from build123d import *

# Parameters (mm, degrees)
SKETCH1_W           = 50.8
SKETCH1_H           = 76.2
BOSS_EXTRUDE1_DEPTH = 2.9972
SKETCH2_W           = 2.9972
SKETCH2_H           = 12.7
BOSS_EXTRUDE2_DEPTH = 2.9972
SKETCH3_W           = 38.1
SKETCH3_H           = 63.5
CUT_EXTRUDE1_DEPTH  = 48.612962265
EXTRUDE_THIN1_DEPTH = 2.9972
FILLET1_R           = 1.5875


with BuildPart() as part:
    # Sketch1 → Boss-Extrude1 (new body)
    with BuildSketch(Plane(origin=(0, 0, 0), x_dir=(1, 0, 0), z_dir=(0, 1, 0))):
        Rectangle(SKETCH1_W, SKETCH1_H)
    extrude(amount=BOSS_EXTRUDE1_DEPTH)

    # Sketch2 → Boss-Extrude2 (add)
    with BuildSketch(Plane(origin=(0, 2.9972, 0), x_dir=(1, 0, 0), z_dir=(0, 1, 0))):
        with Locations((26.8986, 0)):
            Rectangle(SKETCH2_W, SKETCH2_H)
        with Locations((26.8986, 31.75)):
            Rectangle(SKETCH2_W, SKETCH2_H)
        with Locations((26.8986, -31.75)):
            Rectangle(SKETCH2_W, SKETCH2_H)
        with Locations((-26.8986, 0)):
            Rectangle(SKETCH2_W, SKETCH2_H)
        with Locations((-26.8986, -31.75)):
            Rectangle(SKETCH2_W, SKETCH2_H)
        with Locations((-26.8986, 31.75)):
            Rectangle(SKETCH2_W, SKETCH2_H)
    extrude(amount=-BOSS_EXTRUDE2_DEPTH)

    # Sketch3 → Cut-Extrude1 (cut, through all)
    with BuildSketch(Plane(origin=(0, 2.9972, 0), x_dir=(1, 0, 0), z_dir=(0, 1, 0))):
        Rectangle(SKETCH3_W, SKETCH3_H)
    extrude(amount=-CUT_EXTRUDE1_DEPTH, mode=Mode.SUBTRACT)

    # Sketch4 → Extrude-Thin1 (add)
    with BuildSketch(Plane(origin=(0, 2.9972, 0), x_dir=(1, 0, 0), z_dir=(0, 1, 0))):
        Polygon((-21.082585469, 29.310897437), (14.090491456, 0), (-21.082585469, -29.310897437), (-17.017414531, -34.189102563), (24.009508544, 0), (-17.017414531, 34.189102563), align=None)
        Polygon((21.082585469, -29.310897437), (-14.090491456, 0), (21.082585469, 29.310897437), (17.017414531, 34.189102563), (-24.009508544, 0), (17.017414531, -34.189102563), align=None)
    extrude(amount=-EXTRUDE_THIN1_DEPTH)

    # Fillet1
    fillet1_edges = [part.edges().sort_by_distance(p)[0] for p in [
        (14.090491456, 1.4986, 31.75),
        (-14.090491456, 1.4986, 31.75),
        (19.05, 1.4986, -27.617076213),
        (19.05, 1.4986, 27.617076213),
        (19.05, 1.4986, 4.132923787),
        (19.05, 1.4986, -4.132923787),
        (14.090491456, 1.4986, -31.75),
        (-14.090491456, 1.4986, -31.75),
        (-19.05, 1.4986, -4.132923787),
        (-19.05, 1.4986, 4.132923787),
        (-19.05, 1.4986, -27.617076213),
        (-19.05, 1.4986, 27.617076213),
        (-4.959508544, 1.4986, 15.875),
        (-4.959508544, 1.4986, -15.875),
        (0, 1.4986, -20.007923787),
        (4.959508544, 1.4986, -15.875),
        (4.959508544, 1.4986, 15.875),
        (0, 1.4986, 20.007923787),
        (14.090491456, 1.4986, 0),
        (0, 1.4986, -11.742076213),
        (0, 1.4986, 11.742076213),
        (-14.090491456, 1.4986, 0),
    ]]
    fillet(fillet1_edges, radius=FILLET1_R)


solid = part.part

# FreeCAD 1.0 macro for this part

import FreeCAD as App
import Part
import Sketcher
Q = App.Units.Quantity


def edges_at(feature, points):
    """Names of the edges that pass closest to the given points."""
    edges = feature.Shape.Edges
    near = lambda p: min(range(len(edges)), key=lambda i: edges[i].distToShape(Part.Vertex(*p))[0])
    return sorted({f"Edge{near(p) + 1}" for p in points})


def add_polygon(sketch, points):
    """Adds a closed chain of lines whose ends are joined by coincident constraints."""
    first, n = sketch.GeometryCount, len(points)
    for a, b in zip(points, points[1:] + points[:1]):
        sketch.addGeometry(Part.LineSegment(App.Vector(*a, 0), App.Vector(*b, 0)), False)
    for i in range(n):
        sketch.addConstraint(Sketcher.Constraint("Coincident", first + i, 2, first + (i + 1) % n, 1))

doc = App.newDocument("Part")
body = doc.addObject("PartDesign::Body", "Body")

# Sketch on XZ plane
sketch1 = doc.addObject("Sketcher::SketchObject", "Sketch")
body.addObject(sketch1)
sketch1.AttachmentSupport = (doc.XZ_Plane, [""])
sketch1.MapMode = "FlatFace"
add_polygon(sketch1, [(-25, -38), (-25, 38), (25, 38), (25, -38)])  # lines 0-3
sketch1.addConstraint([
    Sketcher.Constraint("Vertical", 0),
    Sketcher.Constraint("Horizontal", 1),
    Sketcher.Constraint("Vertical", 2),
    Sketcher.Constraint("Horizontal", 3),
    Sketcher.Constraint("Symmetric", 0, 2, 2, 2, -1, 1),
    Sketcher.Constraint("DistanceX", 1, 1, 1, 2, Q("2 in")),
    Sketcher.Constraint("DistanceY", 0, 1, 0, 2, Q("3 in")),
])
pad1 = doc.addObject("PartDesign::Pad", "Pad")
body.addObject(pad1)
pad1.Profile = sketch1
pad1.Length = Q("0.118 in")
pad1.Reversed = True

# Sketch on XZ plane
sketch2 = doc.addObject("Sketcher::SketchObject", "Sketch001")
body.addObject(sketch2)
sketch2.AttachmentSupport = (doc.XZ_Plane, [""])
sketch2.MapMode = "FlatFace"
sketch2.AttachmentOffset = App.Placement(App.Vector(0, 0, -0.118 * 25.4), App.Rotation())
add_polygon(sketch2, [(25.4, -6.3), (25.4, 6.3), (28.4, 6.3), (28.4, -6.3)])  # lines 0-3
add_polygon(sketch2, [(25.4, -38.1), (25.4, -25.4), (28.4, -25.4), (28.4, -38.1)])  # lines 4-7
add_polygon(sketch2, [(25.4, 25.4), (25.4, 38.1), (28.4, 38.1), (28.4, 25.4)])  # lines 8-11
add_polygon(sketch2, [(-28.4, -6.3), (-28.4, 6.3), (-25.4, 6.3), (-25.4, -6.3)])  # lines 12-15
add_polygon(sketch2, [(-28.4, 25.4), (-28.4, 38.1), (-25.4, 38.1), (-25.4, 25.4)])  # lines 16-19
add_polygon(sketch2, [(-28.4, -38.1), (-28.4, -25.4), (-25.4, -25.4), (-25.4, -38.1)])  # lines 20-23
sketch2.addConstraint([
    Sketcher.Constraint("Vertical", 0),
    Sketcher.Constraint("Horizontal", 1),
    Sketcher.Constraint("Vertical", 2),
    Sketcher.Constraint("Horizontal", 3),
    Sketcher.Constraint("Vertical", 4),
    Sketcher.Constraint("Horizontal", 5),
    Sketcher.Constraint("Vertical", 6),
    Sketcher.Constraint("Horizontal", 7),
    Sketcher.Constraint("Vertical", 8),
    Sketcher.Constraint("Horizontal", 9),
    Sketcher.Constraint("Vertical", 10),
    Sketcher.Constraint("Horizontal", 11),
    Sketcher.Constraint("Vertical", 12),
    Sketcher.Constraint("Horizontal", 13),
    Sketcher.Constraint("Vertical", 14),
    Sketcher.Constraint("Horizontal", 15),
    Sketcher.Constraint("Vertical", 16),
    Sketcher.Constraint("Horizontal", 17),
    Sketcher.Constraint("Vertical", 18),
    Sketcher.Constraint("Horizontal", 19),
    Sketcher.Constraint("Vertical", 20),
    Sketcher.Constraint("Horizontal", 21),
    Sketcher.Constraint("Vertical", 22),
    Sketcher.Constraint("Horizontal", 23),
    Sketcher.Constraint("Symmetric", 2, 2, 12, 2, -1, 1),
    Sketcher.Constraint("Symmetric", 0, 2, 14, 2, -1, 1),
    Sketcher.Constraint("Symmetric", 6, 2, 16, 2, -1, 1),
    Sketcher.Constraint("Symmetric", 4, 2, 18, 2, -1, 1),
    Sketcher.Constraint("Symmetric", 10, 2, 20, 2, -1, 1),
    Sketcher.Constraint("Symmetric", 8, 2, 22, 2, -1, 1),
    Sketcher.Constraint("Symmetric", 9, 2, 16, 2, -2),
    Sketcher.Constraint("Symmetric", 11, 2, 18, 2, -2),
    Sketcher.Constraint("Horizontal", 1, 2, 12, 2),
    Sketcher.Constraint("Vertical", 3, 2, 4, 2),
    Sketcher.Constraint("Vertical", 2, 2, 5, 2),
    Sketcher.Constraint("Equal", 2, 4),
    Sketcher.Constraint("DistanceY", 0, 1, 0, 2, Q("0.5 in")),
    Sketcher.Constraint("DistanceX", -1, 1, 0, 2, Q("1 in")),
    Sketcher.Constraint("DistanceY", 4, 2, -1, 1, Q("1 in")),
    Sketcher.Constraint("DistanceX", 1, 1, 1, 2, Q("0.118 in")),
])
pad2 = doc.addObject("PartDesign::Pad", "Pad001")
body.addObject(pad2)
pad2.Profile = sketch2
pad2.Length = Q("0.118 in")

# Sketch on XZ plane
sketch3 = doc.addObject("Sketcher::SketchObject", "Sketch002")
body.addObject(sketch3)
sketch3.AttachmentSupport = (doc.XZ_Plane, [""])
sketch3.MapMode = "FlatFace"
sketch3.AttachmentOffset = App.Placement(App.Vector(0, 0, -0.118 * 25.4), App.Rotation())
add_polygon(sketch3, [(-19, -32), (-19, 32), (19, 32), (19, -32)])  # lines 0-3
sketch3.addConstraint([
    Sketcher.Constraint("Vertical", 0),
    Sketcher.Constraint("Horizontal", 1),
    Sketcher.Constraint("Vertical", 2),
    Sketcher.Constraint("Horizontal", 3),
    Sketcher.Constraint("Symmetric", 0, 2, 2, 2, -1, 1),
    Sketcher.Constraint("DistanceX", 1, 1, 1, 2, Q("1.5 in")),
    Sketcher.Constraint("DistanceY", 0, 1, 0, 2, Q("2.5 in")),
])
pocket1 = doc.addObject("PartDesign::Pocket", "Pocket")
body.addObject(pocket1)
pocket1.Profile = sketch3
pocket1.Type = "ThroughAll"
pocket1.Reversed = True

# Sketch on XZ plane
sketch4 = doc.addObject("Sketcher::SketchObject", "Sketch003")
body.addObject(sketch4)
sketch4.AttachmentSupport = (doc.XZ_Plane, [""])
sketch4.MapMode = "FlatFace"
sketch4.AttachmentOffset = App.Placement(App.Vector(0, 0, -0.118 * 25.4), App.Rotation())
add_polygon(sketch4, [(-17, -34), (-21, -29), (-5, -16), (-24, 0), (-5, 16), (-21, 29), (-17, 34), (0, 20), (17, 34), (21, 29), (5, 16), (24, 0), (5, -16), (21, -29), (17, -34), (0, -20)])  # lines 0-15
add_polygon(sketch4, [(0, 12), (-14, 0), (0, -12), (14, 0)])  # lines 16-19
sketch4.addConstraint([
    Sketcher.Constraint("Symmetric", 0, 2, 8, 2, -1, 1),
    Sketcher.Constraint("Symmetric", 1, 2, 9, 2, -1, 1),
    Sketcher.Constraint("Symmetric", 2, 2, 10, 2, -1, 1),
    Sketcher.Constraint("Symmetric", 3, 2, 11, 2, -1, 1),
    Sketcher.Constraint("Symmetric", 4, 2, 12, 2, -1, 1),
    Sketcher.Constraint("Symmetric", 5, 2, 13, 2, -1, 1),
    Sketcher.Constraint("Symmetric", 6, 2, 14, 2, -1, 1),
    Sketcher.Constraint("Symmetric", 7, 2, 15, 2, -1, 1),
    Sketcher.Constraint("Symmetric", 16, 2, 18, 2, -1, 1),
    Sketcher.Constraint("Symmetric", 17, 2, 19, 2, -1, 1),
    Sketcher.Constraint("Symmetric", 5, 2, 7, 2, -2),
    Sketcher.Constraint("Symmetric", 4, 2, 8, 2, -2),
    Sketcher.Constraint("Symmetric", 3, 2, 9, 2, -2),
    Sketcher.Constraint("PointOnObject", 2, 2, -1),
    Sketcher.Constraint("PointOnObject", 6, 2, -2),
    Sketcher.Constraint("PointOnObject", 16, 2, -1),
    Sketcher.Constraint("PointOnObject", 17, 2, -2),
    Sketcher.Constraint("Perpendicular", 0, 1),
    Sketcher.Constraint("Parallel", 1, 3),
    Sketcher.Constraint("Perpendicular", 5, 6),
    Sketcher.Constraint("Parallel", 15, 16),
    Sketcher.Constraint("DistanceY", 0, 2, 5, 2, Q("2.5 in")),
    Sketcher.Constraint("DistanceX", 4, 2, 7, 2, Q("1.5 in")),
    Sketcher.Constraint("Distance", 0, Q("0.25 in")),
    Sketcher.Constraint("DistanceX", 2, 2, 1, 2, Q("0.75 in")),
    Sketcher.Constraint("DistanceY", 1, 2, 3, 2, Q("1.25 in")),
    Sketcher.Constraint("Distance", 16, Q("18.341709 mm")),
])
pad3 = doc.addObject("PartDesign::Pad", "Pad002")
body.addObject(pad3)
pad3.Profile = sketch4
pad3.Length = Q("0.118 in")
doc.recompute()

fillet = doc.addObject("PartDesign::Fillet", "Fillet")
body.addObject(fillet)
fillet.Base = (pad3, edges_at(pad3, [
    (14.09, 1.499, 31.75),
    (-14.09, 1.499, 31.75),
    (19.05, 1.499, -27.617),
    (19.05, 1.499, 27.617),
    (19.05, 1.499, 4.133),
    (19.05, 1.499, -4.133),
    (14.09, 1.499, -31.75),
    (-14.09, 1.499, -31.75),
    (-19.05, 1.499, -4.133),
    (-19.05, 1.499, 4.133),
    (-19.05, 1.499, -27.617),
    (-19.05, 1.499, 27.617),
    (-4.96, 1.499, 15.875),
    (-4.96, 1.499, -15.875),
    (0, 1.499, -20.008),
    (4.96, 1.499, -15.875),
    (4.96, 1.499, 15.875),
    (0, 1.499, 20.008),
    (14.09, 1.499, 0),
    (0, 1.499, -11.742),
    (0, 1.499, 11.742),
    (-14.09, 1.499, 0),
]))
fillet.Radius = Q("0.0625 in")

doc.recompute()
